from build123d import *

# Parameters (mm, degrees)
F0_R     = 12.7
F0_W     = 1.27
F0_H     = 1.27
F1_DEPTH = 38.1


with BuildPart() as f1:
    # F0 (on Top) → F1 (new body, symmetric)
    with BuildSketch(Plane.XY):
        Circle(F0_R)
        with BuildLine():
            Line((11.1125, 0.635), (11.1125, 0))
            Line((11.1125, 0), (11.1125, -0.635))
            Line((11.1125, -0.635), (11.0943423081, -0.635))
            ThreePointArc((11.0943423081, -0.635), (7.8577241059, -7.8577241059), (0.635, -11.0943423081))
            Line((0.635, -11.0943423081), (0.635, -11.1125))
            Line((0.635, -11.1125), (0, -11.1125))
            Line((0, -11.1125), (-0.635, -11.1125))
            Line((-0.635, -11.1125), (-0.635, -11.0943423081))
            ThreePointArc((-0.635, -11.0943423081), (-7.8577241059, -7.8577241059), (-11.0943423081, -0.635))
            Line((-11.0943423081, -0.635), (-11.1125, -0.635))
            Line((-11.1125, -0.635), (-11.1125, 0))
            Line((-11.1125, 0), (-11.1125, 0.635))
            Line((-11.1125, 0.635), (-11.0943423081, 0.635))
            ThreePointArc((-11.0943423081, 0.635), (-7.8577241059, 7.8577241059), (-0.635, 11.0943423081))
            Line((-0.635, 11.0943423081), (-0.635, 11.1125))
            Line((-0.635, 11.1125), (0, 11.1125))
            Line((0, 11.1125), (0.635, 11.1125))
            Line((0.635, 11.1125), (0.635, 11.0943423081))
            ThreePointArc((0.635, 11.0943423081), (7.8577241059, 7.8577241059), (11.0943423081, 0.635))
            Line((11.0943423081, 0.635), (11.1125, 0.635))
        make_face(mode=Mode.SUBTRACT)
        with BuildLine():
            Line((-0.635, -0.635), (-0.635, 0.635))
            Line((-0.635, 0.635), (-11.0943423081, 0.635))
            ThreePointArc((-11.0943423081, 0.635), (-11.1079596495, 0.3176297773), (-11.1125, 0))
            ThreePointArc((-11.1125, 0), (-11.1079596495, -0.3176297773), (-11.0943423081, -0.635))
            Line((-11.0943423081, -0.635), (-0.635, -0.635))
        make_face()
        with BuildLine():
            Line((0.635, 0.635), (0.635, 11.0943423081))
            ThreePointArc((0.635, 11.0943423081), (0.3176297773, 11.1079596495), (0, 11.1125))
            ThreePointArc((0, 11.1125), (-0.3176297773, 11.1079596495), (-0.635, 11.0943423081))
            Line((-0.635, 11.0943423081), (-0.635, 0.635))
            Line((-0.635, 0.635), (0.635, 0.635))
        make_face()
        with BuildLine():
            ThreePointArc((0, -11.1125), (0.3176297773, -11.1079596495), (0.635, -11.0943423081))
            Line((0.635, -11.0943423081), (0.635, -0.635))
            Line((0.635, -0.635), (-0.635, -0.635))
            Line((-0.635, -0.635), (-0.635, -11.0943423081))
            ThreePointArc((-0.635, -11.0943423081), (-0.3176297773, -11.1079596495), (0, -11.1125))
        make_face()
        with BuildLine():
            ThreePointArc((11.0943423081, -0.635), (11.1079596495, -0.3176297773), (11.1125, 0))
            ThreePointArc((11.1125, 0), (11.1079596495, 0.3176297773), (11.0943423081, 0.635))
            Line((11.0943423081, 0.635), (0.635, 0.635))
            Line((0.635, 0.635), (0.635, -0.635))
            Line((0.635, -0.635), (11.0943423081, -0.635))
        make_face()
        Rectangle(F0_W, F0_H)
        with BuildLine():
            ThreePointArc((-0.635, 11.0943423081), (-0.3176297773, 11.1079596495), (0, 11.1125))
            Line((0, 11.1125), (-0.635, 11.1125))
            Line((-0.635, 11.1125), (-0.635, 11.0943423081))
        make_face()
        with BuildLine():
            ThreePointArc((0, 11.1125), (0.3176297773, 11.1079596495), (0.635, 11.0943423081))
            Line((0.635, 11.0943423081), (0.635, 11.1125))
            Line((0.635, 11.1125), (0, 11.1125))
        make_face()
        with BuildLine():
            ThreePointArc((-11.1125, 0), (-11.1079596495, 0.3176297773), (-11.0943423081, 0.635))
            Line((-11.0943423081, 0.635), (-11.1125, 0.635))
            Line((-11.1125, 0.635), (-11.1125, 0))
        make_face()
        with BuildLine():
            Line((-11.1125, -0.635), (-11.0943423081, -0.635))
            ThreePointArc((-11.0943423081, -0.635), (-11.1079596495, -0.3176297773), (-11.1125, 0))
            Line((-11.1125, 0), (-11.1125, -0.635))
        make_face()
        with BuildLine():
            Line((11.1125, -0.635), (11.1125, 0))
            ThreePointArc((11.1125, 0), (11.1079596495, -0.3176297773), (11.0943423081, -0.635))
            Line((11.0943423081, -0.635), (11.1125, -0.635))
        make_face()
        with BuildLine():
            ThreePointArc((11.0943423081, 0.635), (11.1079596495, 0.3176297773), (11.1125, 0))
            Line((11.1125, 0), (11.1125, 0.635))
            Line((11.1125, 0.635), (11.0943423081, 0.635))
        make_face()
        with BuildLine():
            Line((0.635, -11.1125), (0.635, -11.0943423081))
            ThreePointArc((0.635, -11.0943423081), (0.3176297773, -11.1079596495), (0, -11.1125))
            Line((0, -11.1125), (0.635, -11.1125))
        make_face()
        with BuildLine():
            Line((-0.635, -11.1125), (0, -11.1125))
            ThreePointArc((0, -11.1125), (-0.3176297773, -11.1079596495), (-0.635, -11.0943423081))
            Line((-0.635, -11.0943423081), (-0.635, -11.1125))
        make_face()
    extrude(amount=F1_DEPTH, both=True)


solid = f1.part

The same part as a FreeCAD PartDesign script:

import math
import FreeCAD as App
import Part
import Sketcher
Q = App.Units.Quantity

doc = App.newDocument("Part")
body = doc.addObject("PartDesign::Body", "Body")

# Sketch on XY plane
sketch1 = doc.addObject("Sketcher::SketchObject", "Sketch")
body.addObject(sketch1)
sketch1.AttachmentSupport = (doc.XY_Plane, [""])
sketch1.MapMode = "FlatFace"
sketch1.addGeometry(Part.Circle(App.Vector(0, 0, 0), App.Vector(0, 0, 1), 12.7), False)
sketch1.addGeometry(Part.LineSegment(App.Vector(-0.635, -0.635, 0), App.Vector(-0.635, -11.094342, 0)), False)
sketch1.addGeometry(Part.ArcOfCircle(Part.Circle(App.Vector(0, 0, 0), App.Vector(0, 0, 1), 11.1125), math.radians(-176.724171), math.radians(-93.275829)), False)
sketch1.addGeometry(Part.LineSegment(App.Vector(-11.094342, -0.635, 0), App.Vector(-0.635, -0.635, 0)), False)
sketch1.addGeometry(Part.ArcOfCircle(Part.Circle(App.Vector(0, 0, 0), App.Vector(0, 0, 1), 11.1125), math.radians(-86.724171), math.radians(-3.275829)), False)
sketch1.addGeometry(Part.LineSegment(App.Vector(0.635, -11.094342, 0), App.Vector(0.635, -0.635, 0)), False)
sketch1.addGeometry(Part.LineSegment(App.Vector(0.635, -0.635, 0), App.Vector(11.094342, -0.635, 0)), False)
sketch1.addGeometry(Part.LineSegment(App.Vector(-0.635, 0.635, 0), App.Vector(-11.094342, 0.635, 0)), False)
sketch1.addGeometry(Part.ArcOfCircle(Part.Circle(App.Vector(0, 0, 0), App.Vector(0, 0, 1), 11.1125), math.radians(93.275829), math.radians(176.724171)), False)
sketch1.addGeometry(Part.LineSegment(App.Vector(-0.635, 11.094342, 0), App.Vector(-0.635, 0.635, 0)), False)
sketch1.addGeometry(Part.ArcOfCircle(Part.Circle(App.Vector(0, 0, 0), App.Vector(0, 0, 1), 11.1125), math.radians(3.275829), math.radians(86.724171)), False)
sketch1.addGeometry(Part.LineSegment(App.Vector(11.094342, 0.635, 0), App.Vector(0.635, 0.635, 0)), False)
sketch1.addGeometry(Part.LineSegment(App.Vector(0.635, 0.635, 0), App.Vector(0.635, 11.094342, 0)), False)
sketch1.addConstraint(Sketcher.Constraint("Coincident", 1, 2, 2, 2))
sketch1.addConstraint(Sketcher.Constraint("Coincident", 2, 1, 3, 1))
sketch1.addConstraint(Sketcher.Constraint("Coincident", 3, 2, 1, 1))
sketch1.addConstraint(Sketcher.Constraint("Coincident", 4, 1, 5, 1))
sketch1.addConstraint(Sketcher.Constraint("Coincident", 5, 2, 6, 1))
sketch1.addConstraint(Sketcher.Constraint("Coincident", 6, 2, 4, 2))
sketch1.addConstraint(Sketcher.Constraint("Coincident", 7, 2, 8, 2))
sketch1.addConstraint(Sketcher.Constraint("Coincident", 8, 1, 9, 1))
sketch1.addConstraint(Sketcher.Constraint("Coincident", 9, 2, 7, 1))
sketch1.addConstraint(Sketcher.Constraint("Coincident", 10, 1, 11, 1))
sketch1.addConstraint(Sketcher.Constraint("Coincident", 11, 2, 12, 1))
sketch1.addConstraint(Sketcher.Constraint("Coincident", 12, 2, 10, 2))
sketch1.addConstraint(Sketcher.Constraint("Vertical", 1))
sketch1.addConstraint(Sketcher.Constraint("Horizontal", 3))
sketch1.addConstraint(Sketcher.Constraint("Vertical", 5))
sketch1.addConstraint(Sketcher.Constraint("Horizontal", 6))
sketch1.addConstraint(Sketcher.Constraint("Horizontal", 7))
sketch1.addConstraint(Sketcher.Constraint("Vertical", 9))
sketch1.addConstraint(Sketcher.Constraint("Horizontal", 11))
sketch1.addConstraint(Sketcher.Constraint("Vertical", 12))
sketch1.addConstraint(Sketcher.Constraint("Coincident", 0, 3, -1, 1))
sketch1.addConstraint(Sketcher.Constraint("Coincident", 2, 3, -1, 1))
sketch1.addConstraint(Sketcher.Constraint("Coincident", 4, 3, -1, 1))
sketch1.addConstraint(Sketcher.Constraint("Coincident", 8, 3, -1, 1))
sketch1.addConstraint(Sketcher.Constraint("Coincident", 10, 3, -1, 1))
sketch1.addConstraint(Sketcher.Constraint("Equal", 2, 4))
sketch1.addConstraint(Sketcher.Constraint("Equal", 4, 8))
sketch1.addConstraint(Sketcher.Constraint("Equal", 8, 10))
sketch1.addConstraint(Sketcher.Constraint("Symmetric", 5, 2, 9, 2, -1, 1))
sketch1.addConstraint(Sketcher.Constraint("Symmetric", 3, 2, 11, 2, -1, 1))
sketch1.addConstraint(Sketcher.Constraint("Symmetric", 3, 2, 5, 2, -2))
sketch1.addConstraint(Sketcher.Constraint("Equal", 11, 1))
sketch1.addConstraint(Sketcher.Constraint("Diameter", 0, Q("1 in")))
sketch1.addConstraint(Sketcher.Constraint("Radius", 2, Q("0.4375 in")))
sketch1.addConstraint(Sketcher.Constraint("DistanceX", 1, 2, 4, 1, Q("0.05 in")))
pad1 = doc.addObject("PartDesign::Pad", "Pad")
body.addObject(pad1)
pad1.Profile = sketch1
pad1.Length = Q("3 in")
pad1.Midplane = True

doc.recompute()
